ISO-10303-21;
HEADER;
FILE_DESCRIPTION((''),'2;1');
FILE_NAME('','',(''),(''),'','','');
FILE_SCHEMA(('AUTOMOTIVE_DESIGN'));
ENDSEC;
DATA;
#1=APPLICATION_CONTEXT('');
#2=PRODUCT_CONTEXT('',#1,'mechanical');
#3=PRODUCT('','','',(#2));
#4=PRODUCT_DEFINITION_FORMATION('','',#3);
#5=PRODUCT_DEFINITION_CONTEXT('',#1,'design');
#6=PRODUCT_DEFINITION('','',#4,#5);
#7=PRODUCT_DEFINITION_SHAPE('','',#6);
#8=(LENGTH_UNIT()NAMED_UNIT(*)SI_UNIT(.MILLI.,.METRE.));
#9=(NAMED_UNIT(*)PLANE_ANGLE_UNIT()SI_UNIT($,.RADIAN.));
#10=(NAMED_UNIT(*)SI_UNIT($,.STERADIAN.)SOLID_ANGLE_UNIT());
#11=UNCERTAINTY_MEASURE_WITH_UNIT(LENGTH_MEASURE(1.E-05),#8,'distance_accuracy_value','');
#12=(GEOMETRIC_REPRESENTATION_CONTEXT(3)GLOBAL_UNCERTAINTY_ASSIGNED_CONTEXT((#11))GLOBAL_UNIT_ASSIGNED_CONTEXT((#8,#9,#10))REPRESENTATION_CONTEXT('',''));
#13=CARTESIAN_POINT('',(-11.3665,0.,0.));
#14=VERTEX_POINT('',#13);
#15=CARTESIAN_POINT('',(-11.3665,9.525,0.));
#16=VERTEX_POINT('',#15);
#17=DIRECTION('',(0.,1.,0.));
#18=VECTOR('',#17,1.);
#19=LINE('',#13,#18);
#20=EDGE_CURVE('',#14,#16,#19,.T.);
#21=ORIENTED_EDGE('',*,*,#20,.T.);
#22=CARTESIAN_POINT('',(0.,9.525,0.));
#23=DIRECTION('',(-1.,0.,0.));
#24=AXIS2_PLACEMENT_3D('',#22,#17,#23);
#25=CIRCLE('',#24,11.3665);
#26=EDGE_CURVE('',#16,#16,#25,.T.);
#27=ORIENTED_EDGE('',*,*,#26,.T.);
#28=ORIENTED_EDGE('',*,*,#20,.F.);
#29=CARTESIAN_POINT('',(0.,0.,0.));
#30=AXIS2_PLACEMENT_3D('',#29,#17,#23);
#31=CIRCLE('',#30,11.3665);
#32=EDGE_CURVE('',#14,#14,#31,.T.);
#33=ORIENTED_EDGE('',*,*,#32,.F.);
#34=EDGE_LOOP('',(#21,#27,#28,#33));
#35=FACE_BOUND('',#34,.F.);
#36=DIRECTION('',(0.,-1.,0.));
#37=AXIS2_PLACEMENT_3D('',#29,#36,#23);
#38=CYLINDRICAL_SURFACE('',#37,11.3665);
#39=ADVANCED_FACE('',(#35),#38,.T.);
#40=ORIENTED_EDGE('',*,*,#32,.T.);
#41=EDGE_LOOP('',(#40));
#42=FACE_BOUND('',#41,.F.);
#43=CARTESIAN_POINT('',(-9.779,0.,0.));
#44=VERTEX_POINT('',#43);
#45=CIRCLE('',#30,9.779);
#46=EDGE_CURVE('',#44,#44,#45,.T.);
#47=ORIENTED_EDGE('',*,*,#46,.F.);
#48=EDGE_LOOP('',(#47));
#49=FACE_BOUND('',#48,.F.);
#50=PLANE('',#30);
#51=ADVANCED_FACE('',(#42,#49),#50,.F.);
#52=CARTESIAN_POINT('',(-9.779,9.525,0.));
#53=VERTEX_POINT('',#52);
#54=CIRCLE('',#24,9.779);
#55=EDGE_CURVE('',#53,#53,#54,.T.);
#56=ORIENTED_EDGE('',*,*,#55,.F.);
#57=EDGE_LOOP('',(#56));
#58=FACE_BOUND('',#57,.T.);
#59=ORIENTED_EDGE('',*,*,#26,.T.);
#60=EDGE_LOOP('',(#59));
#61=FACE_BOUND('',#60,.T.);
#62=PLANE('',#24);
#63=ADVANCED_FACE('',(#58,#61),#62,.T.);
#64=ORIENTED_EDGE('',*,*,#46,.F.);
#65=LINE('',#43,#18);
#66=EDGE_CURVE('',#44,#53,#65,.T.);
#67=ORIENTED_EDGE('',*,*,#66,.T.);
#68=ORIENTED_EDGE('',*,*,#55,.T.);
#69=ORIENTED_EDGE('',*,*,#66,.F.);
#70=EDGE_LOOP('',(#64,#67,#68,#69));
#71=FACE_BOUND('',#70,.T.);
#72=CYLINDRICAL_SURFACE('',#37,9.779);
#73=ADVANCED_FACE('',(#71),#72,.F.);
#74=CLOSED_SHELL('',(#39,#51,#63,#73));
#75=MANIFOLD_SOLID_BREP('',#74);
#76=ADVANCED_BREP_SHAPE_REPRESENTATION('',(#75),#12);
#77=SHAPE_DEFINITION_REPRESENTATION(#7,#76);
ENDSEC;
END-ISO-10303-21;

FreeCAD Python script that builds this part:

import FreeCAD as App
import Part
import Sketcher

V = App.Vector
Q = App.Units.Quantity

doc = App.newDocument("Part")
body = doc.addObject("PartDesign::Body", "Body")

# Sketch on XZ plane
sketch1 = body.newObject("Sketcher::SketchObject", "Sketch")
sketch1.AttachmentSupport = (doc.getObject("XZ_Plane"), [""])
sketch1.MapMode = "FlatFace"
sketch1.addGeometry(Part.Circle(V(0, 0, 0), V(0, 0, 1), 11), False)
sketch1.addGeometry(Part.Circle(V(0, 0, 0), V(0, 0, 1), 10), False)
sketch1.addConstraint(Sketcher.Constraint("Coincident", 0, 3, -1, 1))
sketch1.addConstraint(Sketcher.Constraint("Coincident", 1, 3, -1, 1))
sketch1.addConstraint(Sketcher.Constraint("Diameter", 1, Q("0.77 in")))
sketch1.addConstraint(Sketcher.Constraint("Diameter", 0, Q("0.895 in")))
pad1 = body.newObject("PartDesign::Pad", "Pad")
pad1.Profile = sketch1
pad1.Length = Q("0.375 in")
pad1.Reversed = True

doc.recompute()
